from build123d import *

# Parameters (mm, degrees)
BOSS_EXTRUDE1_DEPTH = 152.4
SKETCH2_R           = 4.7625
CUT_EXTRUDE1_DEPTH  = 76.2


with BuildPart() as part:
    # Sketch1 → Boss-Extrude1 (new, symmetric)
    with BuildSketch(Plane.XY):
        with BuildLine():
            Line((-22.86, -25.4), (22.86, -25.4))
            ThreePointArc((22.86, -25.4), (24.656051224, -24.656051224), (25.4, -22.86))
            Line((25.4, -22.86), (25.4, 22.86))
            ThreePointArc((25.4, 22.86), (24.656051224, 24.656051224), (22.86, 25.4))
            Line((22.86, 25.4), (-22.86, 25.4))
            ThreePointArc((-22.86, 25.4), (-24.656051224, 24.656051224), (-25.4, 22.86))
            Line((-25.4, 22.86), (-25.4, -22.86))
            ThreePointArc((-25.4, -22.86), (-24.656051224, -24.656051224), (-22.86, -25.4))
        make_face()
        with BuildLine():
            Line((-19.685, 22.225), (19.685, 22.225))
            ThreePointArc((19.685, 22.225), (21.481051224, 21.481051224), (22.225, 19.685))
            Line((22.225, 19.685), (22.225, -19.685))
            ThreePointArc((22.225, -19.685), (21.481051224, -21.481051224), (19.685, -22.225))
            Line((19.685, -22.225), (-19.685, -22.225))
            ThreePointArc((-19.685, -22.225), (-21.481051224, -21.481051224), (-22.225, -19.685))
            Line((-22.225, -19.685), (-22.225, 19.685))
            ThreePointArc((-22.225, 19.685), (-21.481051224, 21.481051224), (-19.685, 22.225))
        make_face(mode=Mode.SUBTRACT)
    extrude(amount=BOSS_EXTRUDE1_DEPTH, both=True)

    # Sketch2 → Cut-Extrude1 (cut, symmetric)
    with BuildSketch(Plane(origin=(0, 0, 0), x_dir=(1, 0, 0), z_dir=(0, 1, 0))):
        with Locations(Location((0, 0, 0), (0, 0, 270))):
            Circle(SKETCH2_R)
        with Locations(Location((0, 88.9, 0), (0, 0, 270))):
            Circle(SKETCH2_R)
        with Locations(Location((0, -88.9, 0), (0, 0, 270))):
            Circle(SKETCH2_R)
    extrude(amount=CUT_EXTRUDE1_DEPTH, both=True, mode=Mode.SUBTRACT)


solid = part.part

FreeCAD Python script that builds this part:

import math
import FreeCAD as App
import Part
import Sketcher

V = App.Vector
Q = App.Units.Quantity

doc = App.newDocument("Part")
params = doc.addObject("Spreadsheet::Sheet", "Params")
for row, (alias, value) in enumerate([
    ("sketch1_radius", "0.1 in"),
    ("sketch1_width", "1.8 in"),
    ("sketch1_width2", "1.55 in"),
    ("pad1_length", "12 in"),
    ("sketch2_diameter", "0.375 in"),
    ("pocket1_length", "6 in"),
], start=1):
    params.set(f"A{row}", alias)
    params.set(f"B{row}", "=" + value)
    params.setAlias(f"B{row}", alias)

body = doc.addObject("PartDesign::Body", "Body")

sketch1 = doc.addObject("Sketcher::SketchObject", "Sketch")
body.addObject(sketch1)
sketch1.AttachmentSupport = (doc.XY_Plane, [""])
sketch1.MapMode = "FlatFace"
sketch1.addGeometry(Part.LineSegment(V(-22.9, -25.4, 0), V(22.9, -25.4, 0)), False)
sketch1.addGeometry(Part.ArcOfCircle(Part.Circle(V(22.9, -22.9, 0), V(0, 0, 1), 2.5), math.radians(-90), math.radians(0)), False)
sketch1.addGeometry(Part.LineSegment(V(25.4, -22.9, 0), V(25.4, 22.9, 0)), False)
sketch1.addGeometry(Part.ArcOfCircle(Part.Circle(V(22.9, 22.9, 0), V(0, 0, 1), 2.5), math.radians(0), math.radians(90)), False)
sketch1.addGeometry(Part.LineSegment(V(22.9, 25.4, 0), V(-22.9, 25.4, 0)), False)
sketch1.addGeometry(Part.ArcOfCircle(Part.Circle(V(-22.9, 22.9, 0), V(0, 0, 1), 2.5), math.radians(90), math.radians(180)), False)
sketch1.addGeometry(Part.LineSegment(V(-25.4, 22.9, 0), V(-25.4, -22.9, 0)), False)
sketch1.addGeometry(Part.ArcOfCircle(Part.Circle(V(-22.9, -22.9, 0), V(0, 0, 1), 2.5), math.radians(-180), math.radians(-90)), False)
sketch1.addGeometry(Part.ArcOfCircle(Part.Circle(V(-19.7, 19.7, 0), V(0, 0, 1), 2.5), math.radians(90), math.radians(180)), False)
sketch1.addGeometry(Part.LineSegment(V(-19.7, 22.2, 0), V(19.7, 22.2, 0)), False)
sketch1.addGeometry(Part.ArcOfCircle(Part.Circle(V(19.7, 19.7, 0), V(0, 0, 1), 2.5), math.radians(0), math.radians(90)), False)
sketch1.addGeometry(Part.LineSegment(V(22.2, 19.7, 0), V(22.2, -19.7, 0)), False)
sketch1.addGeometry(Part.ArcOfCircle(Part.Circle(V(19.7, -19.7, 0), V(0, 0, 1), 2.5), math.radians(-90), math.radians(0)), False)
sketch1.addGeometry(Part.LineSegment(V(19.7, -22.2, 0), V(-19.7, -22.2, 0)), False)
sketch1.addGeometry(Part.ArcOfCircle(Part.Circle(V(-19.7, -19.7, 0), V(0, 0, 1), 2.5), math.radians(-180), math.radians(-90)), False)
sketch1.addGeometry(Part.LineSegment(V(-22.2, -19.7, 0), V(-22.2, 19.7, 0)), False)
sketch1.addConstraint(Sketcher.Constraint("Tangent", 0, 2, 1, 1))
sketch1.addConstraint(Sketcher.Constraint("Tangent", 1, 2, 2, 1))
sketch1.addConstraint(Sketcher.Constraint("Tangent", 2, 2, 3, 1))
sketch1.addConstraint(Sketcher.Constraint("Tangent", 3, 2, 4, 1))
sketch1.addConstraint(Sketcher.Constraint("Tangent", 4, 2, 5, 1))
sketch1.addConstraint(Sketcher.Constraint("Tangent", 5, 2, 6, 1))
sketch1.addConstraint(Sketcher.Constraint("Tangent", 6, 2, 7, 1))
sketch1.addConstraint(Sketcher.Constraint("Tangent", 7, 2, 0, 1))
sketch1.addConstraint(Sketcher.Constraint("Tangent", 8, 1, 9, 1))
sketch1.addConstraint(Sketcher.Constraint("Tangent", 9, 2, 10, 2))
sketch1.addConstraint(Sketcher.Constraint("Tangent", 10, 1, 11, 1))
sketch1.addConstraint(Sketcher.Constraint("Tangent", 11, 2, 12, 2))
sketch1.addConstraint(Sketcher.Constraint("Tangent", 12, 1, 13, 1))
sketch1.addConstraint(Sketcher.Constraint("Tangent", 13, 2, 14, 2))
sketch1.addConstraint(Sketcher.Constraint("Tangent", 14, 1, 15, 1))
sketch1.addConstraint(Sketcher.Constraint("Tangent", 15, 2, 8, 2))
sketch1.addConstraint(Sketcher.Constraint("Horizontal", 0))
sketch1.addConstraint(Sketcher.Constraint("Vertical", 2))
sketch1.addConstraint(Sketcher.Constraint("Horizontal", 4))
sketch1.addConstraint(Sketcher.Constraint("Vertical", 6))
sketch1.addConstraint(Sketcher.Constraint("Horizontal", 9))
sketch1.addConstraint(Sketcher.Constraint("Vertical", 11))
sketch1.addConstraint(Sketcher.Constraint("Horizontal", 13))
sketch1.addConstraint(Sketcher.Constraint("Vertical", 15))
sketch1.addConstraint(Sketcher.Constraint("Equal", 1, 3))
sketch1.addConstraint(Sketcher.Constraint("Equal", 3, 5))
sketch1.addConstraint(Sketcher.Constraint("Equal", 5, 7))
sketch1.addConstraint(Sketcher.Constraint("Equal", 7, 8))
sketch1.addConstraint(Sketcher.Constraint("Equal", 8, 10))
sketch1.addConstraint(Sketcher.Constraint("Equal", 10, 12))
sketch1.addConstraint(Sketcher.Constraint("Equal", 12, 14))
sketch1.addConstraint(Sketcher.Constraint("Symmetric", 1, 3, 5, 3, -1, 1))
sketch1.addConstraint(Sketcher.Constraint("Symmetric", 8, 3, 12, 3, -1, 1))
sketch1.addConstraint(Sketcher.Constraint("Equal", 4, 2))
sketch1.addConstraint(Sketcher.Constraint("Equal", 13, 11))
sketch1.addConstraint(Sketcher.Constraint("Radius", 1, Q("0.1 in")))
sketch1.addConstraint(Sketcher.Constraint("DistanceX", 0, 1, 0, 2, Q("1.8 in")))
sketch1.addConstraint(Sketcher.Constraint("DistanceX", 9, 1, 9, 2, Q("1.55 in")))
sketch1.setExpression("Constraints[35]", "Params.sketch1_radius")
sketch1.setExpression("Constraints[36]", "Params.sketch1_width")
sketch1.setExpression("Constraints[37]", "Params.sketch1_width2")
pad1 = doc.addObject("PartDesign::Pad", "Pad")
body.addObject(pad1)
pad1.Profile = sketch1
pad1.setExpression("Length", "Params.pad1_length")
pad1.Midplane = True

sketch2 = doc.addObject("Sketcher::SketchObject", "Sketch001")
body.addObject(sketch2)
sketch2.AttachmentSupport = (doc.XZ_Plane, [""])
sketch2.MapMode = "FlatFace"
sketch2.addGeometry(Part.Circle(V(0, 0, 0), V(0, 0, 1), 4.8), False)
sketch2.addGeometry(Part.Circle(V(0, -88.9, 0), V(0, 0, 1), 4.8), False)
sketch2.addGeometry(Part.Circle(V(0, 88.9, 0), V(0, 0, 1), 4.8), False)
sketch2.addConstraint(Sketcher.Constraint("Coincident", 0, 3, -1, 1))
sketch2.addConstraint(Sketcher.Constraint("Equal", 0, 1))
sketch2.addConstraint(Sketcher.Constraint("Equal", 1, 2))
sketch2.addConstraint(Sketcher.Constraint("Symmetric", 1, 3, 2, 3, -1, 1))
sketch2.addConstraint(Sketcher.Constraint("PointOnObject", 1, 3, -2))
sketch2.addConstraint(Sketcher.Constraint("Diameter", 0, Q("0.375 in")))
sketch2.addConstraint(Sketcher.Constraint("DistanceY", 1, 3, 2, 3, Q("7 in")))
sketch2.setExpression("Constraints[5]", "Params.sketch2_diameter")
pocket1 = doc.addObject("PartDesign::Pocket", "Pocket")
body.addObject(pocket1)
pocket1.Profile = sketch2
pocket1.setExpression("Length", "Params.pocket1_length")
pocket1.Midplane = True

doc.recompute()
